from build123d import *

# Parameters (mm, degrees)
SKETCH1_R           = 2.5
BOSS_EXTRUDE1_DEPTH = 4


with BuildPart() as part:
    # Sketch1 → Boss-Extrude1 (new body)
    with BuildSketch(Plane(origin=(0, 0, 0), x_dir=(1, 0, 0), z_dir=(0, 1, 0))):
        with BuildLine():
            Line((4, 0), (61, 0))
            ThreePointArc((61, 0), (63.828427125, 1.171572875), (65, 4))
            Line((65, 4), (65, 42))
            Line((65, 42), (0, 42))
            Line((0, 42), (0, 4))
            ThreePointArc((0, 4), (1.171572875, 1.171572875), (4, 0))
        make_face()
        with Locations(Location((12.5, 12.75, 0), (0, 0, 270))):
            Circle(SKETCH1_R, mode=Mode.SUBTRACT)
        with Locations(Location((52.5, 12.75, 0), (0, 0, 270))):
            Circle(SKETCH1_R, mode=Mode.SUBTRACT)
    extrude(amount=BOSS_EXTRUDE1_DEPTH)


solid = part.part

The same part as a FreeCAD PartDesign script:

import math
import FreeCAD as App
import Part
import Sketcher
Q = App.Units.Quantity

doc = App.newDocument("Part")
body = doc.addObject("PartDesign::Body", "Body")

sketch1 = body.newObject("Sketcher::SketchObject", "Sketch")
sketch1.AttachmentSupport = (doc.getObject("XZ_Plane"), [""])
sketch1.MapMode = "FlatFace"
sketch1.addGeometry(Part.LineSegment(App.Vector(4, 0, 0), App.Vector(61, 0, 0)), False)
sketch1.addGeometry(Part.ArcOfCircle(Part.Circle(App.Vector(61, -4, 0), App.Vector(0, 0, 1), 4), math.radians(0), math.radians(90)), False)
sketch1.addGeometry(Part.LineSegment(App.Vector(65, -4, 0), App.Vector(65, -42, 0)), False)
sketch1.addGeometry(Part.LineSegment(App.Vector(65, -42, 0), App.Vector(0, -42, 0)), False)
sketch1.addGeometry(Part.LineSegment(App.Vector(0, -42, 0), App.Vector(0, -4, 0)), False)
sketch1.addGeometry(Part.ArcOfCircle(Part.Circle(App.Vector(4, -4, 0), App.Vector(0, 0, 1), 4), math.radians(90), math.radians(180)), False)
sketch1.addGeometry(Part.Circle(App.Vector(12.5, -12.8, 0), App.Vector(0, 0, 1), 2.5), False)
sketch1.addGeometry(Part.Circle(App.Vector(52.5, -12.8, 0), App.Vector(0, 0, 1), 2.5), False)
sketch1.addConstraint(Sketcher.Constraint("Tangent", 0, 2, 1, 2))
sketch1.addConstraint(Sketcher.Constraint("Tangent", 1, 1, 2, 1))
sketch1.addConstraint(Sketcher.Constraint("Coincident", 2, 2, 3, 1))
sketch1.addConstraint(Sketcher.Constraint("Coincident", 3, 2, 4, 1))
sketch1.addConstraint(Sketcher.Constraint("Tangent", 4, 2, 5, 2))
sketch1.addConstraint(Sketcher.Constraint("Tangent", 5, 1, 0, 1))
sketch1.addConstraint(Sketcher.Constraint("Horizontal", 0))
sketch1.addConstraint(Sketcher.Constraint("Vertical", 2))
sketch1.addConstraint(Sketcher.Constraint("Horizontal", 3))
sketch1.addConstraint(Sketcher.Constraint("Vertical", 4))
sketch1.addConstraint(Sketcher.Constraint("Equal", 1, 5))
sketch1.addConstraint(Sketcher.Constraint("Equal", 6, 7))
sketch1.addConstraint(Sketcher.Constraint("PointOnObject", 0, 2, -1))
sketch1.addConstraint(Sketcher.Constraint("PointOnObject", 3, 2, -2))
sketch1.addConstraint(Sketcher.Constraint("Horizontal", 6, 3, 7, 3))
sketch1.addConstraint(Sketcher.Constraint("Diameter", 6, Q("5 mm")))
sketch1.addConstraint(Sketcher.Constraint("Radius", 1, Q("4 mm")))
sketch1.addConstraint(Sketcher.Constraint("DistanceX", 0, 1, 0, 2, Q("57 mm")))
sketch1.addConstraint(Sketcher.Constraint("DistanceY", 2, 2, 2, 1, Q("38 mm")))
sketch1.addConstraint(Sketcher.Constraint("DistanceX", 6, 3, 7, 3, Q("40 mm")))
sketch1.addConstraint(Sketcher.Constraint("DistanceX", -1, 1, 6, 3, Q("12.5 mm")))
sketch1.addConstraint(Sketcher.Constraint("DistanceY", 6, 3, -1, 1, Q("12.75 mm")))
pad1 = body.newObject("PartDesign::Pad", "Pad")
pad1.Profile = sketch1
pad1.Length = 4
pad1.Reversed = True

doc.recompute()
